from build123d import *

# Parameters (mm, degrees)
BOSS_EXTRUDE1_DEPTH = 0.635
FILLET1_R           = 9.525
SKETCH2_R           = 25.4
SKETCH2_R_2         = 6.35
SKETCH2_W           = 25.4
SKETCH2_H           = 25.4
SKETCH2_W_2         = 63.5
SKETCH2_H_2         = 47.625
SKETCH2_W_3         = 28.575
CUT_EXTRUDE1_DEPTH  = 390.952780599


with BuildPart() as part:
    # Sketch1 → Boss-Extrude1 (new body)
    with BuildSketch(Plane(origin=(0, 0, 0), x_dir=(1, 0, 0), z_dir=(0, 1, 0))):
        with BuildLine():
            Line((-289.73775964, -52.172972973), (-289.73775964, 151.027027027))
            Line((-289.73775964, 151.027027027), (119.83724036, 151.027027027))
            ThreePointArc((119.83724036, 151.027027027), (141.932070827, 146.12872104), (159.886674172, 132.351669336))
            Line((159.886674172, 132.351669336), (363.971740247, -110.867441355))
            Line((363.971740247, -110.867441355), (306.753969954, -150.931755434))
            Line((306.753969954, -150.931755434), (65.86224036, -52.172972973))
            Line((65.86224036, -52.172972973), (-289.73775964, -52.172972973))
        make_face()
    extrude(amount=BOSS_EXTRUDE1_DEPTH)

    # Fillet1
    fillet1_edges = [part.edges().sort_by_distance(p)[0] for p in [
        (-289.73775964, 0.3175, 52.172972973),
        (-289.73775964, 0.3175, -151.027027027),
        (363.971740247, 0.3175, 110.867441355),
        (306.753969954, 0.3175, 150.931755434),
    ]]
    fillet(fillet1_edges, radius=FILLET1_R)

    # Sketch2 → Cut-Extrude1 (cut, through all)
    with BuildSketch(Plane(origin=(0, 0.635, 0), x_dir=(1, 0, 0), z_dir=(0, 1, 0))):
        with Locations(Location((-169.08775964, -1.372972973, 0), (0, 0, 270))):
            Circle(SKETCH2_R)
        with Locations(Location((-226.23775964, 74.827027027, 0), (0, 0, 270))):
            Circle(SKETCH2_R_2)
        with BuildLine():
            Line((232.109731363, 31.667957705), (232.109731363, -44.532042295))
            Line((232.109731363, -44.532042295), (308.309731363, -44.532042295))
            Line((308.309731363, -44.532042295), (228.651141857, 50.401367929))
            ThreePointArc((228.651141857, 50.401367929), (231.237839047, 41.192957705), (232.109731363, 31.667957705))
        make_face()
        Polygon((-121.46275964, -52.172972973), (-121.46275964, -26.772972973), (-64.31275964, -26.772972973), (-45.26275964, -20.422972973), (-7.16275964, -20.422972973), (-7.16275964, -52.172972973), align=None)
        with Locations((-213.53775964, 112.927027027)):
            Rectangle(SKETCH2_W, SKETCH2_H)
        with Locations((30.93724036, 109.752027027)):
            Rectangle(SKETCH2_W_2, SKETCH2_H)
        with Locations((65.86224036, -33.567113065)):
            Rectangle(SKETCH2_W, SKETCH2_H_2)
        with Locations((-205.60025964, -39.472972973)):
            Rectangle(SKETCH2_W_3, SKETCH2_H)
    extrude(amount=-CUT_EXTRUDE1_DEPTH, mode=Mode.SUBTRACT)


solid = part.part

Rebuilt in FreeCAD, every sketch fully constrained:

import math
import FreeCAD as App
import Part
import Sketcher

V = App.Vector
Q = App.Units.Quantity


def edges_at(feature, points):
    """Names of the edges that pass closest to the given points."""
    edges = feature.Shape.Edges
    near = lambda p: min(range(len(edges)), key=lambda i: edges[i].distToShape(Part.Vertex(*p))[0])
    return sorted({f"Edge{near(p) + 1}" for p in points})


def add_polygon(sketch, points):
    """Adds a closed chain of lines whose ends are joined by coincident constraints."""
    first, n = sketch.GeometryCount, len(points)
    for a, b in zip(points, points[1:] + points[:1]):
        sketch.addGeometry(Part.LineSegment(App.Vector(*a, 0), App.Vector(*b, 0)), False)
    for i in range(n):
        sketch.addConstraint(Sketcher.Constraint("Coincident", first + i, 2, first + (i + 1) % n, 1))

doc = App.newDocument("Part")
params = doc.addObject("Spreadsheet::Sheet", "Params")
for row, (alias, value) in enumerate([
    ("sketch1_width", "14 in"),
    ("sketch1_height", "8 in"),
    ("sketch1_length", "12.5 in"),
    ("sketch1_length2", "10.25 in"),
    ("sketch1_length3", "2.75 in"),
    ("pad1_length", "0.025 in"),
    ("fillet_radius", "0.375 in"),
    ("sketch2_diameter", "2 in"),
    ("sketch2_diameter2", "0.5 in"),
    ("sketch2_width", "3 in"),
    ("sketch2_width2", "1 in"),
    ("sketch2_width3", "4.5 in"),
], start=1):
    params.set(f"A{row}", alias)
    params.set(f"B{row}", "=" + value)
    params.setAlias(f"B{row}", alias)

body = doc.addObject("PartDesign::Body", "Body")

sketch1 = body.newObject("Sketcher::SketchObject", "Sketch")
sketch1.AttachmentSupport = (doc.getObject("XZ_Plane"), [""])
sketch1.MapMode = "FlatFace"
sketch1.addGeometry(Part.LineSegment(V(-290, -151, 0), V(-290, 52, 0)), False)
sketch1.addGeometry(Part.LineSegment(V(-290, 52, 0), V(66, 52, 0)), False)
sketch1.addGeometry(Part.LineSegment(V(66, 52, 0), V(307, 151, 0)), False)
sketch1.addGeometry(Part.LineSegment(V(307, 151, 0), V(364, 111, 0)), False)
sketch1.addGeometry(Part.LineSegment(V(364, 111, 0), V(160, -132, 0)), False)
sketch1.addGeometry(Part.ArcOfCircle(Part.Circle(V(120, -99, 0), V(0, 0, 1), 52), math.radians(-90), math.radians(-40)), False)
sketch1.addGeometry(Part.LineSegment(V(120, -151, 0), V(-290, -151, 0)), False)
sketch1.addConstraint(Sketcher.Constraint("Coincident", 0, 2, 1, 1))
sketch1.addConstraint(Sketcher.Constraint("Coincident", 1, 2, 2, 1))
sketch1.addConstraint(Sketcher.Constraint("Coincident", 2, 2, 3, 1))
sketch1.addConstraint(Sketcher.Constraint("Coincident", 3, 2, 4, 1))
sketch1.addConstraint(Sketcher.Constraint("Tangent", 4, 2, 5, 2))
sketch1.addConstraint(Sketcher.Constraint("Tangent", 5, 1, 6, 1))
sketch1.addConstraint(Sketcher.Constraint("Coincident", 6, 2, 0, 1))
sketch1.addConstraint(Sketcher.Constraint("Vertical", 0))
sketch1.addConstraint(Sketcher.Constraint("Horizontal", 1))
sketch1.addConstraint(Sketcher.Constraint("Horizontal", 6))
sketch1.addConstraint(Sketcher.Constraint("DistanceX", 1, 1, 1, 2, Q("14 in")))
sketch1.addConstraint(Sketcher.Constraint("DistanceY", 0, 1, 0, 2, Q("8 in")))
sketch1.addConstraint(Sketcher.Constraint("Angle", 3, Q("-35 deg")))
sketch1.addConstraint(Sketcher.Constraint("Angle", 4, Q("-130 deg")))
sketch1.addConstraint(Sketcher.Constraint("Distance", 4, Q("12.5 in")))
sketch1.addConstraint(Sketcher.Constraint("Radius", 5, Q("2.0583001 in")))
sketch1.addConstraint(Sketcher.Constraint("Distance", 2, Q("10.25 in")))
sketch1.addConstraint(Sketcher.Constraint("Distance", 3, Q("2.75 in")))
sketch1.addConstraint(Sketcher.Constraint("DistanceX", -1, 1, 5, 3, Q("119.83724 mm")))
sketch1.addConstraint(Sketcher.Constraint("DistanceY", -1, 1, 3, 2, Q("110.867441 mm")))
sketch1.setExpression("Constraints[10]", "Params.sketch1_width")
sketch1.setExpression("Constraints[11]", "Params.sketch1_height")
sketch1.setExpression("Constraints[14]", "Params.sketch1_length")
sketch1.setExpression("Constraints[16]", "Params.sketch1_length2")
sketch1.setExpression("Constraints[17]", "Params.sketch1_length3")
pad1 = body.newObject("PartDesign::Pad", "Pad")
pad1.Profile = sketch1
pad1.setExpression("Length", "Params.pad1_length")
pad1.Reversed = True
doc.recompute()

fillet = body.newObject("PartDesign::Fillet", "Fillet")
fillet.Base = (pad1, edges_at(pad1, [
    (-289.738, 0.318, 52.173),
    (-289.738, 0.318, -151.027),
    (363.972, 0.318, 110.867),
    (306.754, 0.318, 150.932),
]))
fillet.setExpression("Radius", "Params.fillet_radius")

sketch2 = body.newObject("Sketcher::SketchObject", "Sketch001")
sketch2.AttachmentSupport = (doc.getObject("XZ_Plane"), [""])
sketch2.MapMode = "FlatFace"
sketch2.AttachmentOffset = App.Placement(V(0, 0, -0.025 * 25.4), App.Rotation())
sketch2.addGeometry(Part.Circle(V(-169, 1, 0), V(0, 0, 1), 25), False)
sketch2.addGeometry(Part.Circle(V(-226, -75, 0), V(0, 0, 1), 6), False)
sketch2.addGeometry(Part.LineSegment(V(232, -32, 0), V(232, 45, 0)), False)
sketch2.addGeometry(Part.LineSegment(V(232, 45, 0), V(308, 45, 0)), False)
sketch2.addGeometry(Part.LineSegment(V(308, 45, 0), V(229, -50, 0)), False)
sketch2.addGeometry(Part.ArcOfCircle(Part.Circle(V(180, -32, 0), V(0, 0, 1), 52), math.radians(-21), math.radians(0)), False)
add_polygon(sketch2, [(-121, 27), (-121, 52), (-7, 52), (-7, 20), (-45, 20), (-64, 27)])
add_polygon(sketch2, [(-226, -126), (-226, -100), (-201, -100), (-201, -126)])
add_polygon(sketch2, [(-1, -122), (-1, -97), (63, -97), (63, -122)])
add_polygon(sketch2, [(53, 10), (53, 57), (79, 57), (79, 10)])
add_polygon(sketch2, [(-220, 27), (-220, 52), (-191, 52), (-191, 27)])
sketch2.addConstraint(Sketcher.Constraint("Coincident", 2, 2, 3, 1))
sketch2.addConstraint(Sketcher.Constraint("Coincident", 3, 2, 4, 1))
sketch2.addConstraint(Sketcher.Constraint("Coincident", 4, 2, 5, 1))
sketch2.addConstraint(Sketcher.Constraint("Tangent", 5, 2, 2, 1))
sketch2.addConstraint(Sketcher.Constraint("Vertical", 2))
sketch2.addConstraint(Sketcher.Constraint("Horizontal", 3))
sketch2.addConstraint(Sketcher.Constraint("Vertical", 6))
sketch2.addConstraint(Sketcher.Constraint("Horizontal", 7))
sketch2.addConstraint(Sketcher.Constraint("Vertical", 8))
sketch2.addConstraint(Sketcher.Constraint("Horizontal", 9))
sketch2.addConstraint(Sketcher.Constraint("Horizontal", 11))
sketch2.addConstraint(Sketcher.Constraint("Vertical", 12))
sketch2.addConstraint(Sketcher.Constraint("Horizontal", 13))
sketch2.addConstraint(Sketcher.Constraint("Vertical", 14))
sketch2.addConstraint(Sketcher.Constraint("Horizontal", 15))
sketch2.addConstraint(Sketcher.Constraint("Vertical", 16))
sketch2.addConstraint(Sketcher.Constraint("Horizontal", 17))
sketch2.addConstraint(Sketcher.Constraint("Vertical", 18))
sketch2.addConstraint(Sketcher.Constraint("Horizontal", 19))
sketch2.addConstraint(Sketcher.Constraint("Vertical", 20))
sketch2.addConstraint(Sketcher.Constraint("Horizontal", 21))
sketch2.addConstraint(Sketcher.Constraint("Vertical", 22))
sketch2.addConstraint(Sketcher.Constraint("Horizontal", 23))
sketch2.addConstraint(Sketcher.Constraint("Vertical", 24))
sketch2.addConstraint(Sketcher.Constraint("Horizontal", 25))
sketch2.addConstraint(Sketcher.Constraint("Vertical", 26))
sketch2.addConstraint(Sketcher.Constraint("Horizontal", 27))
sketch2.addConstraint(Sketcher.Constraint("Horizontal", 7, 2, 24, 2))
sketch2.addConstraint(Sketcher.Constraint("Horizontal", 11, 2, 26, 2))
sketch2.addConstraint(Sketcher.Constraint("Vertical", 1, 3, 12, 2))
sketch2.addConstraint(Sketcher.Constraint("Equal", 15, 21))
sketch2.addConstraint(Sketcher.Constraint("Equal", 3, 2))
sketch2.addConstraint(Sketcher.Constraint("Equal", 23, 6))
sketch2.addConstraint(Sketcher.Constraint("Equal", 6, 12))
sketch2.addConstraint(Sketcher.Constraint("Equal", 14, 16))
sketch2.addConstraint(Sketcher.Constraint("Diameter", 0, Q("2 in")))
sketch2.addConstraint(Sketcher.Constraint("Diameter", 1, Q("0.5 in")))
sketch2.addConstraint(Sketcher.Constraint("DistanceX", 3, 1, 3, 2, Q("3 in")))
sketch2.addConstraint(Sketcher.Constraint("DistanceX", 13, 1, 13, 2, Q("1 in")))
sketch2.addConstraint(Sketcher.Constraint("DistanceX", 7, 1, 7, 2, Q("4.5 in")))
sketch2.addConstraint(Sketcher.Constraint("DistanceX", 9, 2, 9, 1, Q("1.5 in")))
sketch2.addConstraint(Sketcher.Constraint("DistanceX", 17, 1, 17, 2, Q("2.5 in")))
sketch2.addConstraint(Sketcher.Constraint("Angle", 4, Q("-130 deg")))
sketch2.addConstraint(Sketcher.Constraint("DistanceY", 1, 3, 0, 3, Q("3 in")))
sketch2.addConstraint(Sketcher.Constraint("DistanceY", 0, 3, 6, 2, Q("2 in")))
sketch2.addConstraint(Sketcher.Constraint("DistanceY", 12, 2, 1, 3, Q("1 in")))
sketch2.addConstraint(Sketcher.Constraint("DistanceX", 24, 2, 0, 3, Q("2 in")))
sketch2.addConstraint(Sketcher.Constraint("DistanceX", 25, 2, 10, 2, Q("5 in")))
sketch2.addConstraint(Sketcher.Constraint("DistanceX", 11, 2, 11, 1, Q("2.25 in")))
sketch2.addConstraint(Sketcher.Constraint("DistanceY", 8, 2, 8, 1, Q("1.25 in")))
sketch2.addConstraint(Sketcher.Constraint("DistanceX", 10, 2, 16, 2, Q("2.5 in")))
sketch2.addConstraint(Sketcher.Constraint("DistanceX", 25, 1, 25, 2, Q("1.125 in")))
sketch2.addConstraint(Sketcher.Constraint("DistanceY", 20, 1, 20, 2, Q("1.875 in")))
sketch2.addConstraint(Sketcher.Constraint("DistanceX", 1, 3, 0, 3, Q("2.25 in")))
sketch2.addConstraint(Sketcher.Constraint("DistanceY", 16, 2, 8, 2, Q("4.625 in")))
sketch2.addConstraint(Sketcher.Constraint("DistanceX", 7, 2, 20, 2, Q("2.375 in")))
sketch2.addConstraint(Sketcher.Constraint("Radius", 5, Q("52.463945 mm")))
sketch2.addConstraint(Sketcher.Constraint("DistanceX", 0, 3, 4, 2, Q("397.738901 mm")))
sketch2.addConstraint(Sketcher.Constraint("DistanceX", 0, 3, -1, 1, Q("169.08776 mm")))
sketch2.addConstraint(Sketcher.Constraint("DistanceY", 5, 3, 0, 3, Q("33.040931 mm")))
sketch2.addConstraint(Sketcher.Constraint("DistanceY", 7, 2, 20, 2, Q("5.20664 mm")))
sketch2.addConstraint(Sketcher.Constraint("DistanceY", -1, 1, 0, 3, Q("1.372973 mm")))
sketch2.setExpression("Constraints[57]", "Params.sketch2_diameter")
sketch2.setExpression("Constraints[58]", "Params.sketch2_diameter2")
sketch2.setExpression("Constraints[59]", "Params.sketch2_width")
sketch2.setExpression("Constraints[60]", "Params.sketch2_width2")
sketch2.setExpression("Constraints[61]", "Params.sketch2_width3")
pocket1 = body.newObject("PartDesign::Pocket", "Pocket")
pocket1.Profile = sketch2
pocket1.Type = "ThroughAll"
pocket1.Reversed = True

doc.recompute()
